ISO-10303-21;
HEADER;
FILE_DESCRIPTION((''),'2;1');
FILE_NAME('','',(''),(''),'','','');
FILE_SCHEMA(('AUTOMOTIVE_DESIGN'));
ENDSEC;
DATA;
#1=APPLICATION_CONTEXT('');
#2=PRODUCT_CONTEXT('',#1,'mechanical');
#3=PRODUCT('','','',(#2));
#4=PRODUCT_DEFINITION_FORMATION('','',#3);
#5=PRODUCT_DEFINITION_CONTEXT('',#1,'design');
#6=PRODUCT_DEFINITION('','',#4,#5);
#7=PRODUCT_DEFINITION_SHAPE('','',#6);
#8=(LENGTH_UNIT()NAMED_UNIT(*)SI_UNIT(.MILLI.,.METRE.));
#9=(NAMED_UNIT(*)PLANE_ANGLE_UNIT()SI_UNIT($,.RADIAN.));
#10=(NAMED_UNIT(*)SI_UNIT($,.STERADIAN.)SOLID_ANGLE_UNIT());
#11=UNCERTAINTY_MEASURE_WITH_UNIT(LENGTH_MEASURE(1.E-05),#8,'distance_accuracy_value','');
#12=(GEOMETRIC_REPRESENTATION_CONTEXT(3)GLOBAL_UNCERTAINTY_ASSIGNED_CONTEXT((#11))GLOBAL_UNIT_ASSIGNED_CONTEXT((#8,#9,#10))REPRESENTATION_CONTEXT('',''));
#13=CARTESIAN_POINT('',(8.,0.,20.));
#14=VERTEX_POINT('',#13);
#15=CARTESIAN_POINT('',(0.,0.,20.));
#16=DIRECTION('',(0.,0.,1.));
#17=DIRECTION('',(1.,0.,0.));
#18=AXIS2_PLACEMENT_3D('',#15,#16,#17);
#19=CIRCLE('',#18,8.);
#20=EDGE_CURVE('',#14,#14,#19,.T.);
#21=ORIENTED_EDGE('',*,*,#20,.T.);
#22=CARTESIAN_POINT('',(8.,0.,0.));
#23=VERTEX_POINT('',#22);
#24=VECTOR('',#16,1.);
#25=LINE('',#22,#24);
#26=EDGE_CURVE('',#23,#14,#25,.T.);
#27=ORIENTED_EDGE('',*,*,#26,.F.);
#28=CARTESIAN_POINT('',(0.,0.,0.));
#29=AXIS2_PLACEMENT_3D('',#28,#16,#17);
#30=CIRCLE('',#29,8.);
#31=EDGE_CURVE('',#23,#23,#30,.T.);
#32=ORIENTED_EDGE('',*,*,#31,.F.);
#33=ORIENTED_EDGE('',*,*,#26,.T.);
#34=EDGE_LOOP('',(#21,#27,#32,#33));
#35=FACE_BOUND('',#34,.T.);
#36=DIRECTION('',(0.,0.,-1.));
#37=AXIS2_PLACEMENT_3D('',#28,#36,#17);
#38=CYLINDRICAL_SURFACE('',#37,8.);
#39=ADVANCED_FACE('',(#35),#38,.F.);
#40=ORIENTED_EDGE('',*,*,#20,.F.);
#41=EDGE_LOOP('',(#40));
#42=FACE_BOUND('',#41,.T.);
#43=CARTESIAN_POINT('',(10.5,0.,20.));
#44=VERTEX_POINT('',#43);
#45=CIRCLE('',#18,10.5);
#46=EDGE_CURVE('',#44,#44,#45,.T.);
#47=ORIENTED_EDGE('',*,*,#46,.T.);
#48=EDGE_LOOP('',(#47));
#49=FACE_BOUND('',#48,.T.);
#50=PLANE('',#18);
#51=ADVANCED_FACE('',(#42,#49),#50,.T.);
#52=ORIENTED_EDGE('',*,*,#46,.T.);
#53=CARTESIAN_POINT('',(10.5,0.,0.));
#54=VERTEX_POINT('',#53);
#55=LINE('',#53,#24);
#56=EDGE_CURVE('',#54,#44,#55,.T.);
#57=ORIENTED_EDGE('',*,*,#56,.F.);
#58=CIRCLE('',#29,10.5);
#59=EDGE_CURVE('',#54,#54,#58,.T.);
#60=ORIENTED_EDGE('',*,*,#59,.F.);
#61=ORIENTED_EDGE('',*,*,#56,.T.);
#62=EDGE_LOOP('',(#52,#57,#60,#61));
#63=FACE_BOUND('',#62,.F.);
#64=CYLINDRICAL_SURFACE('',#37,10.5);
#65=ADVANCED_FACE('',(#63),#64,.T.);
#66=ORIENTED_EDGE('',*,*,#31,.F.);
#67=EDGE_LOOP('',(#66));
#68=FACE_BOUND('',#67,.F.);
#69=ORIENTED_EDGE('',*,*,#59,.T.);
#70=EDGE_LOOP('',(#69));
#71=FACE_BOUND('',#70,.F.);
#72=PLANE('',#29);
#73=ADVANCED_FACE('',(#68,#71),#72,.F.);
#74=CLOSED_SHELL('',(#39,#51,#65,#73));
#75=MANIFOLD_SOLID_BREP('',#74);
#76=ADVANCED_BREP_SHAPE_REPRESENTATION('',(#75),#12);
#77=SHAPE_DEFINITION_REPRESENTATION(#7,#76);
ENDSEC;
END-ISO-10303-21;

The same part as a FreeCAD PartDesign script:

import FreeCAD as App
import Part
import Sketcher

V = App.Vector
Q = App.Units.Quantity

doc = App.newDocument("Part")
body = doc.addObject("PartDesign::Body", "Body")

sketch1 = body.newObject("Sketcher::SketchObject", "Sketch")
sketch1.AttachmentSupport = (doc.getObject("XY_Plane"), [""])
sketch1.MapMode = "FlatFace"
sketch1.addGeometry([
    Part.Circle(V(0, 0, 0), V(0, 0, 1), 10.5),
    Part.Circle(V(0, 0, 0), V(0, 0, 1), 8),
], False)
sketch1.addConstraint([
    Sketcher.Constraint("Coincident", 0, 3, -1, 1),
    Sketcher.Constraint("Coincident", 1, 3, -1, 1),
    Sketcher.Constraint("Diameter", 0, Q("21 mm")),
    Sketcher.Constraint("Diameter", 1, Q("16 mm")),
])
pad1 = body.newObject("PartDesign::Pad", "Pad")
pad1.Profile = sketch1
pad1.Length = 20

doc.recompute()
